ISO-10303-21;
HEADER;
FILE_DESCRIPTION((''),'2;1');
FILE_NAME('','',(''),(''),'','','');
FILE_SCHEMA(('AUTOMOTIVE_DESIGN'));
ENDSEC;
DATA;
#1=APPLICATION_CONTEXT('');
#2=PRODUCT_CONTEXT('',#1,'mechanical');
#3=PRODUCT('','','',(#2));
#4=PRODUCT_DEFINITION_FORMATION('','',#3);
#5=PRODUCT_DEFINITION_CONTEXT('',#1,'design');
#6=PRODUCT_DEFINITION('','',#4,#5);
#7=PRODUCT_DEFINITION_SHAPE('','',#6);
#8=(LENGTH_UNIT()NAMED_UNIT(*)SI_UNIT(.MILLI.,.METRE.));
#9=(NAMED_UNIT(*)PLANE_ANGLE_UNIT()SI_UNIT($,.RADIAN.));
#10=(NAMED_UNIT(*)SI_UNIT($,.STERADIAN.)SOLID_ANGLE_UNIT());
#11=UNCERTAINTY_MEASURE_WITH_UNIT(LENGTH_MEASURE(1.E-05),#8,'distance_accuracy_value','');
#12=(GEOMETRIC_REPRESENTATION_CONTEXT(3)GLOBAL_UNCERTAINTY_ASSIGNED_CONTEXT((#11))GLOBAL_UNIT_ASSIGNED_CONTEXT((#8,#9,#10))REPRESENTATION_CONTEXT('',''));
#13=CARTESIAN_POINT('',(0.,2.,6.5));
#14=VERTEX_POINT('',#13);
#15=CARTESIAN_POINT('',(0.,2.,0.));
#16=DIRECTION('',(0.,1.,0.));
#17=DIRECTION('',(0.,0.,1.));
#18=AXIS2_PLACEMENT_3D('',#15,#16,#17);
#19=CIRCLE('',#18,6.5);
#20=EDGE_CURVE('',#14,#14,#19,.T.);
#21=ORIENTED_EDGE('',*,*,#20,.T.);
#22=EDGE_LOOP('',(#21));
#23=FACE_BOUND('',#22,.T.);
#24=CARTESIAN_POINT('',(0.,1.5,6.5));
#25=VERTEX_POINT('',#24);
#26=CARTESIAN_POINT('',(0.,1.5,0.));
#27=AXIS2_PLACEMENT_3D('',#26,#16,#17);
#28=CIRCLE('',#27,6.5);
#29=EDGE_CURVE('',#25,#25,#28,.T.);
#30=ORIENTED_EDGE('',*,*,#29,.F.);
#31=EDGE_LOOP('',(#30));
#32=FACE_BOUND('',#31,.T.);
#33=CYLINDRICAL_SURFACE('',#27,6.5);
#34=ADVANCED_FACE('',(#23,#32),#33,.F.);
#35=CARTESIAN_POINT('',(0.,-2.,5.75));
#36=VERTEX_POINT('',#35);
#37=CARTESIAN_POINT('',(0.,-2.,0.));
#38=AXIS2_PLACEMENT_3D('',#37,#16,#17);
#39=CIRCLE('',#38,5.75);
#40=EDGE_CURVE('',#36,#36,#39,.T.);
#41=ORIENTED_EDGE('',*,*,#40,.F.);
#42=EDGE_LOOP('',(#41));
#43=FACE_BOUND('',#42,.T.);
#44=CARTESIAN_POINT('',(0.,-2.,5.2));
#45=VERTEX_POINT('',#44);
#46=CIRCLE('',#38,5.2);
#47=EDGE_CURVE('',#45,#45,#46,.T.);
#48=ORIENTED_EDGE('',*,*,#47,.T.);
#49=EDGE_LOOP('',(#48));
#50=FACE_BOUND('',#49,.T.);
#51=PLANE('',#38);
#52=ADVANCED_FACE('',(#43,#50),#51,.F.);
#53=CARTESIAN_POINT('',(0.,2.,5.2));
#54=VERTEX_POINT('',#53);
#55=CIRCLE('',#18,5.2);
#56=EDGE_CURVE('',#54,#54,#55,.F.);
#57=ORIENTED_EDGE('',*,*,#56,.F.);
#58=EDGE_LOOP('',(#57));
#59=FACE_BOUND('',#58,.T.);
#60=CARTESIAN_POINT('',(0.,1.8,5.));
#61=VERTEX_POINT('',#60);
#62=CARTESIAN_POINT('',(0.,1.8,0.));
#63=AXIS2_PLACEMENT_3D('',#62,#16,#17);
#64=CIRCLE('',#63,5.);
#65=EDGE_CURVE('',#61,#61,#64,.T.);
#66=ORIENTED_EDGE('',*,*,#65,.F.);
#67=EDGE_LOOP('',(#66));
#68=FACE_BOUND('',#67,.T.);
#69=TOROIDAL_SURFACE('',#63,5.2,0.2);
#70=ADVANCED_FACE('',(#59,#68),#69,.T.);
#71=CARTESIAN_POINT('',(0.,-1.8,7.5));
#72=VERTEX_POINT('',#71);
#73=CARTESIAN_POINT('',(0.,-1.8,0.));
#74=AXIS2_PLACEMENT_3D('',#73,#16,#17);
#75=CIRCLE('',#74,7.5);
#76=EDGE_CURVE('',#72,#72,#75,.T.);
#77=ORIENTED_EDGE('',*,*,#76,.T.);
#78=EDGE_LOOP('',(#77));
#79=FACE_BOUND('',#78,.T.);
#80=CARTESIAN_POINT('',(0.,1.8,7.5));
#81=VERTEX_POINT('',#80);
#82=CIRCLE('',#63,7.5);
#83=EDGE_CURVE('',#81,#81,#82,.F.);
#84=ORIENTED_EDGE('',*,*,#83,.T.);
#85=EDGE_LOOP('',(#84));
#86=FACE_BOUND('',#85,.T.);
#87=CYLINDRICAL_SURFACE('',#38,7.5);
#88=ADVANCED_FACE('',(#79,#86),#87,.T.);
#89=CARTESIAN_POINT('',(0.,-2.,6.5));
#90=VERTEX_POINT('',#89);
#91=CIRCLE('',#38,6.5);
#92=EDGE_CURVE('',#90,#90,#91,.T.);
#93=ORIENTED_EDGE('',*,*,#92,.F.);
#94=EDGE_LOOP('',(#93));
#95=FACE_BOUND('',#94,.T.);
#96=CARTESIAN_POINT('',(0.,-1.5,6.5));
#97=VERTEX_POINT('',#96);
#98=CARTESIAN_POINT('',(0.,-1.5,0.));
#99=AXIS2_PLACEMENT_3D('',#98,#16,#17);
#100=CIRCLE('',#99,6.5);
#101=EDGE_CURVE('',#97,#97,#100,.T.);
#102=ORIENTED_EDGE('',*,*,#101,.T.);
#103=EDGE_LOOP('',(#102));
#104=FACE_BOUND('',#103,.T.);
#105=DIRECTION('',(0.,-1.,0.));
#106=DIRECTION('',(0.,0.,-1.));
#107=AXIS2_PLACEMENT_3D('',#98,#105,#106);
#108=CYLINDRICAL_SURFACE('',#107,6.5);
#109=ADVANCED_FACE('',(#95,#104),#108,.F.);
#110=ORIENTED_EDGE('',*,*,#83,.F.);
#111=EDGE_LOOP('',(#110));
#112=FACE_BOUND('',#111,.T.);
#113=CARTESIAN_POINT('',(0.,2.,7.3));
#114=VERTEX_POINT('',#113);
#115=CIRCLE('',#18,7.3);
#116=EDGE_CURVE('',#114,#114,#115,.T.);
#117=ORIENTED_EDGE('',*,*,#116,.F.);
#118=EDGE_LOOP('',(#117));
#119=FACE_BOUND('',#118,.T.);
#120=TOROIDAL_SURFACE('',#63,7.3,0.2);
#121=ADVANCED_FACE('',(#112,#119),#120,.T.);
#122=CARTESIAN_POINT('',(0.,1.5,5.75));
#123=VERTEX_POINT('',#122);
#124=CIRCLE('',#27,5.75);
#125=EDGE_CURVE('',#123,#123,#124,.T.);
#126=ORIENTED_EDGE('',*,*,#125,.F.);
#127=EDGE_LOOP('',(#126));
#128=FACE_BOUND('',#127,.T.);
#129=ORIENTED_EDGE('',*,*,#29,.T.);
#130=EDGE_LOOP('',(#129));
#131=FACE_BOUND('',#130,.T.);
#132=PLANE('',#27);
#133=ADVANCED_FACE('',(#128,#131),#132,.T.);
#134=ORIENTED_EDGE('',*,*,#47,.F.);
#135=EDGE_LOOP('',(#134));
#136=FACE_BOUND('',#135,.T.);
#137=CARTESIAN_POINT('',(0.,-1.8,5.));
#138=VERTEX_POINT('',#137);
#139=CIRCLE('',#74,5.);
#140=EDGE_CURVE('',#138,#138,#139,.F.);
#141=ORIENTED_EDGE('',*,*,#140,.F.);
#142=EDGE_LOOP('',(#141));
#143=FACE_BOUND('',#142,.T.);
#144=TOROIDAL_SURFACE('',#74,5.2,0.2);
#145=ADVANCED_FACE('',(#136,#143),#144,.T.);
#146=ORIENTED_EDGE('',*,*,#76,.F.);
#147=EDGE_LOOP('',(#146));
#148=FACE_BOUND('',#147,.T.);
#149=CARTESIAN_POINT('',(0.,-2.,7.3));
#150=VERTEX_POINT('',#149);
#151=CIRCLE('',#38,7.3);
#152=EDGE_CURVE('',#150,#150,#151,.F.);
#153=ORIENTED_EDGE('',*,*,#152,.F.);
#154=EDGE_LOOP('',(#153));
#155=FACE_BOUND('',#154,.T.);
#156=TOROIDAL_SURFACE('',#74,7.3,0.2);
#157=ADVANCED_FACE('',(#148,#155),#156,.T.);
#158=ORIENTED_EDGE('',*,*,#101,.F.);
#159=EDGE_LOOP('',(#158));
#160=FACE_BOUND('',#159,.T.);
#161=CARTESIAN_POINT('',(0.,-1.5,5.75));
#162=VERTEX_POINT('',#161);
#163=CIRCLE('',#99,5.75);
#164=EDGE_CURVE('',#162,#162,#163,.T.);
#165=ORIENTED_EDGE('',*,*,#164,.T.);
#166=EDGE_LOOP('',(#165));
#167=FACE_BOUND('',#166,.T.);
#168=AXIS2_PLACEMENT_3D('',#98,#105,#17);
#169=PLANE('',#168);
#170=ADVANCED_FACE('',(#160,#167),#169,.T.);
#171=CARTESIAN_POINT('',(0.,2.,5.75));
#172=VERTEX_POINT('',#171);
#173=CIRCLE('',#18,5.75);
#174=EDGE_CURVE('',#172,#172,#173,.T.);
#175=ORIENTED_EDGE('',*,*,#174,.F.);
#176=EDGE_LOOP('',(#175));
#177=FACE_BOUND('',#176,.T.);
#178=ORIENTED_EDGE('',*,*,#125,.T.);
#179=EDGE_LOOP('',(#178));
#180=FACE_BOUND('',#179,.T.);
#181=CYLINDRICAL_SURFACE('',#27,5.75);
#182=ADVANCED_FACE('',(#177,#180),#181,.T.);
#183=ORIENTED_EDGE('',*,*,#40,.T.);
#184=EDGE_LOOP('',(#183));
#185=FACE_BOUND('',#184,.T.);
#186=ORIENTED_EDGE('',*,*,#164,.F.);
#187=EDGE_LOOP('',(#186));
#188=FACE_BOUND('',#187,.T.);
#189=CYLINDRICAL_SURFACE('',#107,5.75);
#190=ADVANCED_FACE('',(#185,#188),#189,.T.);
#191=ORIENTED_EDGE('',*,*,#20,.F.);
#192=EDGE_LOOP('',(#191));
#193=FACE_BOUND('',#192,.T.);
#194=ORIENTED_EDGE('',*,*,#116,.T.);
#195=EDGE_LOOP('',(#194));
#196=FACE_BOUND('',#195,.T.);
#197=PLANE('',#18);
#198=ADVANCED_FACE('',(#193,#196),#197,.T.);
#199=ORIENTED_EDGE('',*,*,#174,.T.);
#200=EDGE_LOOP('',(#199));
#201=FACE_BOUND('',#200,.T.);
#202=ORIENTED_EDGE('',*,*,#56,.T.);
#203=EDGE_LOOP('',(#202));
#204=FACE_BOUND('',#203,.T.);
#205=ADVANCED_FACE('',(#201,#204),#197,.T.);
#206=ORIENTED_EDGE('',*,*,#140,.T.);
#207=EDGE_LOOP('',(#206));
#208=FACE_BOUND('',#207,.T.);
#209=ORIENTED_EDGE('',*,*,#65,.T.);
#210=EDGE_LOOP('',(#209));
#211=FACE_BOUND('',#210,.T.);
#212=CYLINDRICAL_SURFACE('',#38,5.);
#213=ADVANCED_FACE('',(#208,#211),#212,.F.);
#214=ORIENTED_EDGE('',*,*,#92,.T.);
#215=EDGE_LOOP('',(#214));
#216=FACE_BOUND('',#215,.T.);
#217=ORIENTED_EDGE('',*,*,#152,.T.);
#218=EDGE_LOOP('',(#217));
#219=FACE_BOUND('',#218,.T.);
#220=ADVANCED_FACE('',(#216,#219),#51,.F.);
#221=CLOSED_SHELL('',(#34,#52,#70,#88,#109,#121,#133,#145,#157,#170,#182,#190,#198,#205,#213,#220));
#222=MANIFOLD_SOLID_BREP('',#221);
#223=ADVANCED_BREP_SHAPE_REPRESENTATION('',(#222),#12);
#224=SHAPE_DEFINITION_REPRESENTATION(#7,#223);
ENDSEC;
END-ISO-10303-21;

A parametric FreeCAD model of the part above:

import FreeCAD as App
import Part
import Sketcher
Q = App.Units.Quantity


def edges_at(feature, points):
    """Names of the edges that pass closest to the given points."""
    edges = feature.Shape.Edges
    near = lambda p: min(range(len(edges)), key=lambda i: edges[i].distToShape(Part.Vertex(*p))[0])
    return sorted({f"Edge{near(p) + 1}" for p in points})

doc = App.newDocument("Part")
body = doc.addObject("PartDesign::Body", "Body")

sketch1 = body.newObject("Sketcher::SketchObject", "Sketch")
sketch1.AttachmentSupport = (doc.getObject("XZ_Plane"), [""])
sketch1.MapMode = "FlatFace"
sketch1.addGeometry([
    Part.Circle(App.Vector(0, 0, 0), App.Vector(0, 0, 1), 8),
    Part.Circle(App.Vector(0, 0, 0), App.Vector(0, 0, 1), 5),
], False)
sketch1.addConstraint([
    Sketcher.Constraint("Coincident", 0, 3, -1, 1),
    Sketcher.Constraint("Coincident", 1, 3, -1, 1),
    Sketcher.Constraint("Diameter", 0, Q("15 mm")),
    Sketcher.Constraint("Diameter", 1, Q("10 mm")),
])
pad1 = body.newObject("PartDesign::Pad", "Pad")
pad1.Profile = sketch1
pad1.Type = "TwoLengths"
pad1.Length = 2
pad1.Length2 = 2
pad1.Reversed = True

sketch2 = body.newObject("Sketcher::SketchObject", "Sketch001")
sketch2.AttachmentSupport = (doc.getObject("XZ_Plane"), [""])
sketch2.MapMode = "FlatFace"
sketch2.AttachmentOffset = App.Placement(App.Vector(0, 0, -2), App.Rotation())
sketch2.addGeometry([
    Part.Circle(App.Vector(0, 0, 0), App.Vector(0, 0, 1), 6),
    Part.Circle(App.Vector(0, 0, 0), App.Vector(0, 0, 1), 6),
], False)
sketch2.addConstraint([
    Sketcher.Constraint("Coincident", 0, 3, -1, 1),
    Sketcher.Constraint("Coincident", 1, 3, -1, 1),
    Sketcher.Constraint("Diameter", 0, Q("13 mm")),
    Sketcher.Constraint("Diameter", 1, Q("11.5 mm")),
])
pocket1 = body.newObject("PartDesign::Pocket", "Pocket")
pocket1.Profile = sketch2
pocket1.Length = 0.5
pocket1.Reversed = True
doc.recompute()

mirrored = body.newObject("PartDesign::Mirrored", "Mirrored")
mirrored.Originals = [pocket1]
mirrored.MirrorPlane = (doc.getObject("XZ_Plane"), [""])
body.Tip = mirrored
doc.recompute()

fillet = body.newObject("PartDesign::Fillet", "Fillet")
fillet.Base = (mirrored, edges_at(mirrored, [
    (0, -2, -7.5),
    (0, -2, -5),
    (0, 2, -7.5),
    (0, 2, -5),
]))
fillet.Radius = 0.2

doc.recompute()
